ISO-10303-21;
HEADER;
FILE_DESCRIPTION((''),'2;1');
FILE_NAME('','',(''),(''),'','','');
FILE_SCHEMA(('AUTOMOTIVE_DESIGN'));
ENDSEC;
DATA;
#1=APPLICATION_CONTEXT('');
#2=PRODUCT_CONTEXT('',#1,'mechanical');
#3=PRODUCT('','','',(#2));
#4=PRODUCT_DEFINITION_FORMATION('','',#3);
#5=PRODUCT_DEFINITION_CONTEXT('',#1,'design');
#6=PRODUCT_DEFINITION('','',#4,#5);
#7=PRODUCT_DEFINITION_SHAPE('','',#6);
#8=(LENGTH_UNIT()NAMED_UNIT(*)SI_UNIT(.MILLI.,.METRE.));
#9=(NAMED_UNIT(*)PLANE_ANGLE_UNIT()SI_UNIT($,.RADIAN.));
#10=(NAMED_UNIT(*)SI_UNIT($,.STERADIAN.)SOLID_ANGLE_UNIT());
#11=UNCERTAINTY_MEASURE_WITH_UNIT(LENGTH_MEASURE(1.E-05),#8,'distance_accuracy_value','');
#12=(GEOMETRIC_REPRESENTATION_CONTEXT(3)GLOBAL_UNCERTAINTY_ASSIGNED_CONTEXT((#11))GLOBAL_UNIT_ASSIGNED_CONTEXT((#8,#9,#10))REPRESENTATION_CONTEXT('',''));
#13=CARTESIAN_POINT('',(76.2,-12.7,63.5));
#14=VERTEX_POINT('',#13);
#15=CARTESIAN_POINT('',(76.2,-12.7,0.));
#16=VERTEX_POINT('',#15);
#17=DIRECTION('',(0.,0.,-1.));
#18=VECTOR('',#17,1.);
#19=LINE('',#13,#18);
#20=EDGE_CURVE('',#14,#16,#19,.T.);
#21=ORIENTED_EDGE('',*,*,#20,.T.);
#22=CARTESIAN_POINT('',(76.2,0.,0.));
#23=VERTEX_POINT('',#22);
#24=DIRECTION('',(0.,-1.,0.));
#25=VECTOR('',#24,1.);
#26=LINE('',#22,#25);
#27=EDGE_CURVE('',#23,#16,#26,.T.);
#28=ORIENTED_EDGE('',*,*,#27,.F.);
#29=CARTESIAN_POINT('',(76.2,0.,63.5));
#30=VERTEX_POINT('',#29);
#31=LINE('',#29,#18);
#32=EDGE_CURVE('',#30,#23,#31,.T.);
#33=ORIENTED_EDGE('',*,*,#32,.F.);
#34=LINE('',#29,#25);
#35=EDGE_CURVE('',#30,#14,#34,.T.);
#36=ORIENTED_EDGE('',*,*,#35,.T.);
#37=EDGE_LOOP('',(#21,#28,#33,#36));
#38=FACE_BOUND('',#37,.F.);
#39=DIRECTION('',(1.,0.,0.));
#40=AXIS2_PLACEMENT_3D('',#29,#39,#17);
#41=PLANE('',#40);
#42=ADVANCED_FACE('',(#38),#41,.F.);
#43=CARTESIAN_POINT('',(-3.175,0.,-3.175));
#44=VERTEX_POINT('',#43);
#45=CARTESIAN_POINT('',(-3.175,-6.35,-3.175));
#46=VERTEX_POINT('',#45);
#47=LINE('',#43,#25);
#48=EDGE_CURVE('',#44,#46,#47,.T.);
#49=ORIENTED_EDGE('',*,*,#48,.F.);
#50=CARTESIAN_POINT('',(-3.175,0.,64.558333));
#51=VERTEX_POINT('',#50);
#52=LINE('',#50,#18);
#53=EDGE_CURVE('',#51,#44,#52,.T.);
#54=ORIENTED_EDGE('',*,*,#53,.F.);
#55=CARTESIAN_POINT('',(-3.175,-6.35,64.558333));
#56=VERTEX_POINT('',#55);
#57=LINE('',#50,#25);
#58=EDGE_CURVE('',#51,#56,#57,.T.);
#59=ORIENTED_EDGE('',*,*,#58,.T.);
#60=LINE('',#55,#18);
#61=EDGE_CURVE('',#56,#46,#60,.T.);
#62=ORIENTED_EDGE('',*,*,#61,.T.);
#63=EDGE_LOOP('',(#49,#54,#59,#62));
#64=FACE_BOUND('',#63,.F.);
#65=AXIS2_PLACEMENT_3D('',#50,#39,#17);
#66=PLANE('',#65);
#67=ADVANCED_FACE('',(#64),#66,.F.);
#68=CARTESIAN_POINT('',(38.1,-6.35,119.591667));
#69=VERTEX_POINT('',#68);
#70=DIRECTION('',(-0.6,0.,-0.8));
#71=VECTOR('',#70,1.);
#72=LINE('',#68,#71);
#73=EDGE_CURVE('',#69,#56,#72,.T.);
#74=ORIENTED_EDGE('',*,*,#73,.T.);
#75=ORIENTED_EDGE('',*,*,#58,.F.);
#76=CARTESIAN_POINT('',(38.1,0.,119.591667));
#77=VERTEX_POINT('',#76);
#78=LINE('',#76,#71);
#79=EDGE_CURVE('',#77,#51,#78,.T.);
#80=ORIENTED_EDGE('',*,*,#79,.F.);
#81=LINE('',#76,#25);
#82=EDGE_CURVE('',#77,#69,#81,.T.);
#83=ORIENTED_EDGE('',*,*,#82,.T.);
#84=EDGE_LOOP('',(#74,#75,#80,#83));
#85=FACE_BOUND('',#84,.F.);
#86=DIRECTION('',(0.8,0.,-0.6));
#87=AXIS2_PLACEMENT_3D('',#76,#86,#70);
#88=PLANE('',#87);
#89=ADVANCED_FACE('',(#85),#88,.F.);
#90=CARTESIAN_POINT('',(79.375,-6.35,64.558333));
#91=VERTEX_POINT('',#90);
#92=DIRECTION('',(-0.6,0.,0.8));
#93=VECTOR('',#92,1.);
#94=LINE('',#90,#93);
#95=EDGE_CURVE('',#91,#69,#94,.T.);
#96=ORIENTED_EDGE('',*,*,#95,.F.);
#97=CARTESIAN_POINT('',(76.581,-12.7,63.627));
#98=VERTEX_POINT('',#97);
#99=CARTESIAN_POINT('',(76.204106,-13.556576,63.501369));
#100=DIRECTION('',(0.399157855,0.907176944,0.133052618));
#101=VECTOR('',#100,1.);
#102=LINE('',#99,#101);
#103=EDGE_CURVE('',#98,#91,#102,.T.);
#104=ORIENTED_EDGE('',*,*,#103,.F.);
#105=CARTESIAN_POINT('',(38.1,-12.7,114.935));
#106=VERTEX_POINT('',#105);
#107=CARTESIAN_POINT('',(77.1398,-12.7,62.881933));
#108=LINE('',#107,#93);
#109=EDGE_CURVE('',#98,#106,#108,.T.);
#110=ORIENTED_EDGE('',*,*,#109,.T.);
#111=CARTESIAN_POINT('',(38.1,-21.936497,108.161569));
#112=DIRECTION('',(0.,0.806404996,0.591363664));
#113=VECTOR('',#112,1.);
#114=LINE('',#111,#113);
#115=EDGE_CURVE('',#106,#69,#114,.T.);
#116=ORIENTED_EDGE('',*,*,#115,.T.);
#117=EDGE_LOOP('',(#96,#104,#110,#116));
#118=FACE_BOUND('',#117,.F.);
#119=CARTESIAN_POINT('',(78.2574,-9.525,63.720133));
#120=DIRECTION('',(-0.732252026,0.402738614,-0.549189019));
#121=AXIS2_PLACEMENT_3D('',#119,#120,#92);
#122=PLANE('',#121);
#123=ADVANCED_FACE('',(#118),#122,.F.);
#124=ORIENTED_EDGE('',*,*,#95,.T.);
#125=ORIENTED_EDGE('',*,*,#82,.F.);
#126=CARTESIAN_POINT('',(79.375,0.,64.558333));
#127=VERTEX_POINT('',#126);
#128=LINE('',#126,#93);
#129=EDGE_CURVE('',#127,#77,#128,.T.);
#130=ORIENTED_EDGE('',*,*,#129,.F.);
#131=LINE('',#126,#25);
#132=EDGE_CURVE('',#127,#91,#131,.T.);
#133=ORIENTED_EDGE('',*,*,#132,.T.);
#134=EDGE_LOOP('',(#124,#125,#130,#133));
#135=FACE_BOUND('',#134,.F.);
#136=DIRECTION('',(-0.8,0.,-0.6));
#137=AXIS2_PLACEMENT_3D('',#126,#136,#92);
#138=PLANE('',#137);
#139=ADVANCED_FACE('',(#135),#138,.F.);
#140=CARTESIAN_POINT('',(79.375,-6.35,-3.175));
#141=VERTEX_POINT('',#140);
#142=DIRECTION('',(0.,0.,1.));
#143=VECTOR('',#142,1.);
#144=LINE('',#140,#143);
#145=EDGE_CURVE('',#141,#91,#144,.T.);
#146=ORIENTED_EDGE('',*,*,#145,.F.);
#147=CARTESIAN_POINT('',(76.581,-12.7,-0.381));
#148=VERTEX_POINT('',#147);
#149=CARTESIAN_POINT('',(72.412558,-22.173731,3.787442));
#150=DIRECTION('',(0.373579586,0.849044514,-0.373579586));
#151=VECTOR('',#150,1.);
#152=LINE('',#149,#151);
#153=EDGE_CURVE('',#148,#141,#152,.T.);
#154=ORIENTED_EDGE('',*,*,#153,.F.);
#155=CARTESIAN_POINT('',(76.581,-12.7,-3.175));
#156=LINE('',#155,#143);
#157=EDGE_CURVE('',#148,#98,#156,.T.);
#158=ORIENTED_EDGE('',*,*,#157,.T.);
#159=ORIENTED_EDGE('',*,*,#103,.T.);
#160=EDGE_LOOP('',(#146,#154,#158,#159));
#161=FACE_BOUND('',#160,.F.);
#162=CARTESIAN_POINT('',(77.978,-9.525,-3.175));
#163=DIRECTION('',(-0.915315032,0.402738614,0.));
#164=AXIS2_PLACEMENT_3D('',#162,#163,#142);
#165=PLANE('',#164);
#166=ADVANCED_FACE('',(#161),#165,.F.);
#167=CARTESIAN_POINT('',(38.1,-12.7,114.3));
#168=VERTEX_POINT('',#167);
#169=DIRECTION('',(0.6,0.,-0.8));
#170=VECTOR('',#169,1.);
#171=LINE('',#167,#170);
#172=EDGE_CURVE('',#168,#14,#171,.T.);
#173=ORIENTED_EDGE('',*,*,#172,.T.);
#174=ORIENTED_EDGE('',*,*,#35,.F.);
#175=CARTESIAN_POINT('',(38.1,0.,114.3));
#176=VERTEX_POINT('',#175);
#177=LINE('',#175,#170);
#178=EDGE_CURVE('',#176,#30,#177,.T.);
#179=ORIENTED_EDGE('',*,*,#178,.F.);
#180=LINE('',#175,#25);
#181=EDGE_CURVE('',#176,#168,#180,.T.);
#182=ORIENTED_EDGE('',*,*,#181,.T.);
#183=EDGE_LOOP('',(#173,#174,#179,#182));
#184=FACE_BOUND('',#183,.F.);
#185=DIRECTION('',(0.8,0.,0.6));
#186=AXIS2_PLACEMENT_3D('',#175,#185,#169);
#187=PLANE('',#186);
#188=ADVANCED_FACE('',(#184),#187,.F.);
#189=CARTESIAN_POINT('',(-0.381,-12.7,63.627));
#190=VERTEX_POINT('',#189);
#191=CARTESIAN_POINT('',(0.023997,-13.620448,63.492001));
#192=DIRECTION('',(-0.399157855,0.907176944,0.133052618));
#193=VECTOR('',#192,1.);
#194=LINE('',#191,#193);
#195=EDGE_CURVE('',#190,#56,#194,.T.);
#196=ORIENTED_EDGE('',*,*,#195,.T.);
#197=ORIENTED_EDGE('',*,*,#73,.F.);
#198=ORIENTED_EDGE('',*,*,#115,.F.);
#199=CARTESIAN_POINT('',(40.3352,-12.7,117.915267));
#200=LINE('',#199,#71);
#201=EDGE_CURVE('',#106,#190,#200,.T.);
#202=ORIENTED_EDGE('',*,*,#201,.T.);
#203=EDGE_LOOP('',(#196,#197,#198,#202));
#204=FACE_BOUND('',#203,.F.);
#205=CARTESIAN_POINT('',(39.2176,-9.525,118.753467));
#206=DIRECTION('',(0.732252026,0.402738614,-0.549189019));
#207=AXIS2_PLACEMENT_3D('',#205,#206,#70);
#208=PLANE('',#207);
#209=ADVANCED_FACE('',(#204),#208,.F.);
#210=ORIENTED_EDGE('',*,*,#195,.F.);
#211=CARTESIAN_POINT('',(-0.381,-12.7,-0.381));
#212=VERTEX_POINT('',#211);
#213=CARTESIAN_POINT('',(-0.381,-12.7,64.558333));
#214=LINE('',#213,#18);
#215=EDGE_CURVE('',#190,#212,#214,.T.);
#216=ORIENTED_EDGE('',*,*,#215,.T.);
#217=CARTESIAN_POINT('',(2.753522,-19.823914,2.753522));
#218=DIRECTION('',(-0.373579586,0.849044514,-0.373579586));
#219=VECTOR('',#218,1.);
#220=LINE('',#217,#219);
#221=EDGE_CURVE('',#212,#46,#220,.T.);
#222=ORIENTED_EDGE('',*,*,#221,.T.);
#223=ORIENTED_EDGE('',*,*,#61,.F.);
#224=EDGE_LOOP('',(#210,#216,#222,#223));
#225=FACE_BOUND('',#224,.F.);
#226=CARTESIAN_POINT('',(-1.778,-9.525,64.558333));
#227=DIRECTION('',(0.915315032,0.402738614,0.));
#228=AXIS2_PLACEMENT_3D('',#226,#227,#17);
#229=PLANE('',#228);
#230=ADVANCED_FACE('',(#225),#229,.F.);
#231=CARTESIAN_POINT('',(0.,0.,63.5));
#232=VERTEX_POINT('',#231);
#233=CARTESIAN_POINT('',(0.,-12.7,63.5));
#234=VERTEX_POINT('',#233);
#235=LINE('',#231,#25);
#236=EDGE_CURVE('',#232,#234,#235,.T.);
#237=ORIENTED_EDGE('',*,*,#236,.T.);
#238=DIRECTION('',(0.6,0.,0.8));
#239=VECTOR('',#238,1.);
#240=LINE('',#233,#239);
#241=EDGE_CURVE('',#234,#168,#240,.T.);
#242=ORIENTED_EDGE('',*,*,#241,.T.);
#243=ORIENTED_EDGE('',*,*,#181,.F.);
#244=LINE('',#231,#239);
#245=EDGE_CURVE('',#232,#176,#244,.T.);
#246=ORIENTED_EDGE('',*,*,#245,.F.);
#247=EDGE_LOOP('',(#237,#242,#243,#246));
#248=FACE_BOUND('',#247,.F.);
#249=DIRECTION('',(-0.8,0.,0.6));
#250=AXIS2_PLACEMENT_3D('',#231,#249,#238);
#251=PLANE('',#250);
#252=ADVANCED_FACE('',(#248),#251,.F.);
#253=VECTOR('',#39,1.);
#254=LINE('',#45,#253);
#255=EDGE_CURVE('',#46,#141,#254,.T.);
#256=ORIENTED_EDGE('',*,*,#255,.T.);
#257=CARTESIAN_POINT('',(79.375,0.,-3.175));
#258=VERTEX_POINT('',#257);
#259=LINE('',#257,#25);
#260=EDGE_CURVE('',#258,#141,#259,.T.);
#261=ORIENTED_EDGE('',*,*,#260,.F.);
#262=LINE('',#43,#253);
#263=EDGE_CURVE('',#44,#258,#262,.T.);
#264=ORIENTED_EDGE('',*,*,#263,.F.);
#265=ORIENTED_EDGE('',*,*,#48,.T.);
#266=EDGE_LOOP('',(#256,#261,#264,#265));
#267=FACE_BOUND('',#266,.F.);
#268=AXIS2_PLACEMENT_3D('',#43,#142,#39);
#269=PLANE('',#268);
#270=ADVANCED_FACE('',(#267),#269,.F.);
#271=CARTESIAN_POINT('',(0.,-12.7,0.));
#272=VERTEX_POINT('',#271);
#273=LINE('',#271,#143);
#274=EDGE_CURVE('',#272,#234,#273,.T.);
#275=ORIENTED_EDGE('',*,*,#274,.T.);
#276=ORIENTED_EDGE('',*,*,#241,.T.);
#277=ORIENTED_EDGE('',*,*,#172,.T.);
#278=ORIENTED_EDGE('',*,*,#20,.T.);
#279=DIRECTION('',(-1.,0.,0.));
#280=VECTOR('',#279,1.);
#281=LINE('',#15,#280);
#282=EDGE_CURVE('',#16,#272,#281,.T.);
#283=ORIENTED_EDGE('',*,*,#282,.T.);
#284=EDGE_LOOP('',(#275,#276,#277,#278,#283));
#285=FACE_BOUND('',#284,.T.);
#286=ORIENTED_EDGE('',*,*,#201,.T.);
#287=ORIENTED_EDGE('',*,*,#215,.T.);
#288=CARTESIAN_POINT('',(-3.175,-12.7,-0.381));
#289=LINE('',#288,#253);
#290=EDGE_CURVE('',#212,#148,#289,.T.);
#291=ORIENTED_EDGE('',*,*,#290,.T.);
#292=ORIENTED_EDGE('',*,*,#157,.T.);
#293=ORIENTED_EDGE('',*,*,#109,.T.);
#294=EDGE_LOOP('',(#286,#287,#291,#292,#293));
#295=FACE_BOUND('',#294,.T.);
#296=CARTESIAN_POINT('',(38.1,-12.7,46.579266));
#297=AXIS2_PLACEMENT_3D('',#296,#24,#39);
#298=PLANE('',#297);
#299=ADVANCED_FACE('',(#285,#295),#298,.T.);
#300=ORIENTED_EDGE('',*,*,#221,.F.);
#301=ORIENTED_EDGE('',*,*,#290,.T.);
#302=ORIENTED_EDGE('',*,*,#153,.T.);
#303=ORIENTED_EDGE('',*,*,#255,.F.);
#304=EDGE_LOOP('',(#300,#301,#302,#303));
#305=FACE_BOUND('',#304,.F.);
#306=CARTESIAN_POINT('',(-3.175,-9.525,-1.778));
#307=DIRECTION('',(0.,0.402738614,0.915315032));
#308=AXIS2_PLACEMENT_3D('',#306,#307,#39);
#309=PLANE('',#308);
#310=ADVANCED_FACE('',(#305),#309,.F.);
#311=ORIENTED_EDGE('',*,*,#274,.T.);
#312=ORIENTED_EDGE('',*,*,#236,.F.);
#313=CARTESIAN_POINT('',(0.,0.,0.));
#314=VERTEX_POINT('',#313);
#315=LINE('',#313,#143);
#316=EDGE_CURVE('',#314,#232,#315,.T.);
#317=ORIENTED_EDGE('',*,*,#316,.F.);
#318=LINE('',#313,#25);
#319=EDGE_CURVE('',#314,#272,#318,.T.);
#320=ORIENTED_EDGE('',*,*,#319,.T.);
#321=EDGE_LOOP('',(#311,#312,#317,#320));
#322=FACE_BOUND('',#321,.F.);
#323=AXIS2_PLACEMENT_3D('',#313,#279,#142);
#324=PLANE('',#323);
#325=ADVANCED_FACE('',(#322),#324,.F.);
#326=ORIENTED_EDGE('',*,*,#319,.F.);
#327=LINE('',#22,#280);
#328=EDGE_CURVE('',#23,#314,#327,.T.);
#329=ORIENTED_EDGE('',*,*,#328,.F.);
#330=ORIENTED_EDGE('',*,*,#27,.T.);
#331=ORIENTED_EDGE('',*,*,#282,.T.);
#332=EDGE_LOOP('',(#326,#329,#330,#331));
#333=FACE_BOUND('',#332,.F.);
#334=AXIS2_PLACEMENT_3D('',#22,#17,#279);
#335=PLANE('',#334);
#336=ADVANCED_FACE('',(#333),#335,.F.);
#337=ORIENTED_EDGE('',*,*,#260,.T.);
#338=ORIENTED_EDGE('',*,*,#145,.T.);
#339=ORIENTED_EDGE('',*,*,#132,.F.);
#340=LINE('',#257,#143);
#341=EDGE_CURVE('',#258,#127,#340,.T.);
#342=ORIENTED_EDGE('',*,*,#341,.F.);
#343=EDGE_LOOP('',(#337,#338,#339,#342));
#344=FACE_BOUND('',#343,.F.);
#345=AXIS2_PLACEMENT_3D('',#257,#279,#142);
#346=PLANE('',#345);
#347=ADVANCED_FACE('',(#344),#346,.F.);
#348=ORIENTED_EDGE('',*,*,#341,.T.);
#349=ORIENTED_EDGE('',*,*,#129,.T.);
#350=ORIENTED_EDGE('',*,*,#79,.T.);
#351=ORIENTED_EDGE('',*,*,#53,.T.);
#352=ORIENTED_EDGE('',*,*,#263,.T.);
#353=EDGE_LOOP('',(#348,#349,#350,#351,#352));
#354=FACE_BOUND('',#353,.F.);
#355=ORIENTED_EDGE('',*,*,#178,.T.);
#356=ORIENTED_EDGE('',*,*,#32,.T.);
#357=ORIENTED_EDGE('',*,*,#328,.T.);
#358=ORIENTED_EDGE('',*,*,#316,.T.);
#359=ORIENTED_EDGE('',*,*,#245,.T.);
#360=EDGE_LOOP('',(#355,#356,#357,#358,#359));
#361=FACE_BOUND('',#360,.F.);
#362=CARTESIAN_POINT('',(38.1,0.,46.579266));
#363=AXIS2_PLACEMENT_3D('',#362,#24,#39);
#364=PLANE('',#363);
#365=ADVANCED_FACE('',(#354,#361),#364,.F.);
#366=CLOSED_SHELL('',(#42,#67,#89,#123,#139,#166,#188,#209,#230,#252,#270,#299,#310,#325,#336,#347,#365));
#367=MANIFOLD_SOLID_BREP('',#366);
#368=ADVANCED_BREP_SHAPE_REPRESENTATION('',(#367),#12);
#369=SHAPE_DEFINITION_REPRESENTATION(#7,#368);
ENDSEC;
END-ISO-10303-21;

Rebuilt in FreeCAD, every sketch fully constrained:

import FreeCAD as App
import Part
import Sketcher

V = App.Vector
Q = App.Units.Quantity


def edges_at(feature, points):
    """Names of the edges that pass closest to the given points."""
    edges = feature.Shape.Edges
    near = lambda p: min(range(len(edges)), key=lambda i: edges[i].distToShape(Part.Vertex(*p))[0])
    return sorted({f"Edge{near(p) + 1}" for p in points})


def add_polygon(sketch, points):
    """Adds a closed chain of lines whose ends are joined by coincident constraints."""
    first, n = sketch.GeometryCount, len(points)
    for a, b in zip(points, points[1:] + points[:1]):
        sketch.addGeometry(Part.LineSegment(App.Vector(*a, 0), App.Vector(*b, 0)), False)
    for i in range(n):
        sketch.addConstraint(Sketcher.Constraint("Coincident", first + i, 2, first + (i + 1) % n, 1))

doc = App.newDocument("Part")
body = doc.addObject("PartDesign::Body", "Body")

# Sketch on XZ plane
sketch1 = body.newObject("Sketcher::SketchObject", "Sketch")
sketch1.AttachmentSupport = (doc.getObject("XZ_Plane"), [""])
sketch1.MapMode = "FlatFace"
add_polygon(sketch1, [(79, -3), (79, 65), (38, 120), (-3, 65), (-3, -3)])  # lines 0-4
add_polygon(sketch1, [(76, 64), (76, 0), (0, 0), (0, 64), (38, 114)])  # lines 5-9
sketch1.addConstraint(Sketcher.Constraint("Vertical", 0))
sketch1.addConstraint(Sketcher.Constraint("Vertical", 3))
sketch1.addConstraint(Sketcher.Constraint("Horizontal", 4))
sketch1.addConstraint(Sketcher.Constraint("Vertical", 5))
sketch1.addConstraint(Sketcher.Constraint("Horizontal", 6))
sketch1.addConstraint(Sketcher.Constraint("Vertical", 7))
sketch1.addConstraint(Sketcher.Constraint("Coincident", 6, 2, -1, 1))
sketch1.addConstraint(Sketcher.Constraint("Parallel", 2, 8))
sketch1.addConstraint(Sketcher.Constraint("Parallel", 1, 9))
sketch1.addConstraint(Sketcher.Constraint("Horizontal", 0, 2, 2, 2))
sketch1.addConstraint(Sketcher.Constraint("Horizontal", 7, 2, 9, 2))
sketch1.addConstraint(Sketcher.Constraint("Vertical", 1, 2, 8, 2))
sketch1.addConstraint(Sketcher.Constraint("Equal", 1, 2))
sketch1.addConstraint(Sketcher.Constraint("DistanceX", 6, 2, 6, 1, Q("3 in")))
sketch1.addConstraint(Sketcher.Constraint("DistanceY", 5, 2, 5, 1, Q("2.5 in")))
sketch1.addConstraint(Sketcher.Constraint("DistanceY", 7, 2, 8, 2, Q("2 in")))
sketch1.addConstraint(Sketcher.Constraint("DistanceX", 4, 1, 4, 2, Q("3.25 in")))
sketch1.addConstraint(Sketcher.Constraint("DistanceY", 3, 2, -1, 1, Q("0.125 in")))
sketch1.addConstraint(Sketcher.Constraint("DistanceY", 0, 1, 0, 2, 67.733333))
pad1 = body.newObject("PartDesign::Pad", "Pad")
pad1.Profile = sketch1
pad1.Length = Q("0.5 in")
doc.recompute()

chamfer = body.newObject("PartDesign::Chamfer", "Chamfer")
chamfer.Base = (pad1, edges_at(pad1, [
    (38.1, -12.7, -3.175),
    (79.375, -12.7, 30.692),
    (58.737, -12.7, 92.075),
    (17.462, -12.7, 92.075),
    (-3.175, -12.7, 30.692),
]))
chamfer.ChamferType = "Two distances"
chamfer.Size = Q("0.11 in")
chamfer.Size2 = Q("0.25 in")
chamfer.FlipDirection = True

doc.recompute()
